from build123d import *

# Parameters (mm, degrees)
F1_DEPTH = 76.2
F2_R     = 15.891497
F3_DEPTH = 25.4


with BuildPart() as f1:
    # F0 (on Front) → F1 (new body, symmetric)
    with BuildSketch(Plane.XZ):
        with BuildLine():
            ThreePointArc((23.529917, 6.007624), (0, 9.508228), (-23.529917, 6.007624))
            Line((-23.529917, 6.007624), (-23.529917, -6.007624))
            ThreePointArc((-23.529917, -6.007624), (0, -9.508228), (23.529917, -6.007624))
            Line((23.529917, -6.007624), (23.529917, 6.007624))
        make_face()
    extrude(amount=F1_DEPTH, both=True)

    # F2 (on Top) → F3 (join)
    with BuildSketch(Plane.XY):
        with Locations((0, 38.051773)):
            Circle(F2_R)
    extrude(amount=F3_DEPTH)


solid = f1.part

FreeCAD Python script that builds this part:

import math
import FreeCAD as App
import Part
import Sketcher
from FreeCAD import Vector
Q = App.Units.Quantity

doc = App.newDocument("Part")
body = doc.addObject("PartDesign::Body", "Body")

sketch1 = body.newObject("Sketcher::SketchObject", "Sketch")
sketch1.AttachmentSupport = (doc.getObject("XZ_Plane"), [""])
sketch1.MapMode = "FlatFace"
sketch1.addGeometry([
    Part.ArcOfCircle(Part.Circle(Vector(0, -71, 0), Vector(0, 0, 1), 81), math.radians(73), math.radians(107)),
    Part.LineSegment(Vector(-24, 6, 0), Vector(-24, -6, 0)),
    Part.ArcOfCircle(Part.Circle(Vector(0, 71, 0), Vector(0, 0, 1), 81), math.radians(-107), math.radians(-73)),
    Part.LineSegment(Vector(24, -6, 0), Vector(24, 6, 0)),
], False)
sketch1.addConstraint([
    Sketcher.Constraint("Coincident", 0, 2, 1, 1),
    Sketcher.Constraint("Coincident", 1, 2, 2, 1),
    Sketcher.Constraint("Coincident", 2, 2, 3, 1),
    Sketcher.Constraint("Coincident", 3, 2, 0, 1),
    Sketcher.Constraint("Vertical", 1),
    Sketcher.Constraint("Vertical", 3),
    Sketcher.Constraint("Equal", 0, 2),
    Sketcher.Constraint("Symmetric", 0, 3, 2, 3, -1, 1),
    Sketcher.Constraint("Symmetric", 1, 2, 2, 2, -2),
    Sketcher.Constraint("Radius", 0, 80.830511),
    Sketcher.Constraint("DistanceY", 1, 2, 1, 1, 12.015248),
    Sketcher.Constraint("DistanceY", 0, 2, 2, 3, 65.314659),
])
pad1 = body.newObject("PartDesign::Pad", "Pad")
pad1.Profile = sketch1
pad1.Length = Q("6 in")
pad1.Midplane = True

sketch2 = body.newObject("Sketcher::SketchObject", "Sketch001")
sketch2.AttachmentSupport = (doc.getObject("XY_Plane"), [""])
sketch2.MapMode = "FlatFace"
sketch2.addGeometry(Part.Circle(Vector(0, 38, 0), Vector(0, 0, 1), 16), False)
sketch2.addConstraint([
    Sketcher.Constraint("PointOnObject", 0, 3, -2),
    Sketcher.Constraint("Diameter", 0, 31.782994),
    Sketcher.Constraint("DistanceY", -1, 1, 0, 3, 38.051773),
])
pad2 = body.newObject("PartDesign::Pad", "Pad001")
pad2.Profile = sketch2
pad2.Length = Q("1 in")

doc.recompute()
